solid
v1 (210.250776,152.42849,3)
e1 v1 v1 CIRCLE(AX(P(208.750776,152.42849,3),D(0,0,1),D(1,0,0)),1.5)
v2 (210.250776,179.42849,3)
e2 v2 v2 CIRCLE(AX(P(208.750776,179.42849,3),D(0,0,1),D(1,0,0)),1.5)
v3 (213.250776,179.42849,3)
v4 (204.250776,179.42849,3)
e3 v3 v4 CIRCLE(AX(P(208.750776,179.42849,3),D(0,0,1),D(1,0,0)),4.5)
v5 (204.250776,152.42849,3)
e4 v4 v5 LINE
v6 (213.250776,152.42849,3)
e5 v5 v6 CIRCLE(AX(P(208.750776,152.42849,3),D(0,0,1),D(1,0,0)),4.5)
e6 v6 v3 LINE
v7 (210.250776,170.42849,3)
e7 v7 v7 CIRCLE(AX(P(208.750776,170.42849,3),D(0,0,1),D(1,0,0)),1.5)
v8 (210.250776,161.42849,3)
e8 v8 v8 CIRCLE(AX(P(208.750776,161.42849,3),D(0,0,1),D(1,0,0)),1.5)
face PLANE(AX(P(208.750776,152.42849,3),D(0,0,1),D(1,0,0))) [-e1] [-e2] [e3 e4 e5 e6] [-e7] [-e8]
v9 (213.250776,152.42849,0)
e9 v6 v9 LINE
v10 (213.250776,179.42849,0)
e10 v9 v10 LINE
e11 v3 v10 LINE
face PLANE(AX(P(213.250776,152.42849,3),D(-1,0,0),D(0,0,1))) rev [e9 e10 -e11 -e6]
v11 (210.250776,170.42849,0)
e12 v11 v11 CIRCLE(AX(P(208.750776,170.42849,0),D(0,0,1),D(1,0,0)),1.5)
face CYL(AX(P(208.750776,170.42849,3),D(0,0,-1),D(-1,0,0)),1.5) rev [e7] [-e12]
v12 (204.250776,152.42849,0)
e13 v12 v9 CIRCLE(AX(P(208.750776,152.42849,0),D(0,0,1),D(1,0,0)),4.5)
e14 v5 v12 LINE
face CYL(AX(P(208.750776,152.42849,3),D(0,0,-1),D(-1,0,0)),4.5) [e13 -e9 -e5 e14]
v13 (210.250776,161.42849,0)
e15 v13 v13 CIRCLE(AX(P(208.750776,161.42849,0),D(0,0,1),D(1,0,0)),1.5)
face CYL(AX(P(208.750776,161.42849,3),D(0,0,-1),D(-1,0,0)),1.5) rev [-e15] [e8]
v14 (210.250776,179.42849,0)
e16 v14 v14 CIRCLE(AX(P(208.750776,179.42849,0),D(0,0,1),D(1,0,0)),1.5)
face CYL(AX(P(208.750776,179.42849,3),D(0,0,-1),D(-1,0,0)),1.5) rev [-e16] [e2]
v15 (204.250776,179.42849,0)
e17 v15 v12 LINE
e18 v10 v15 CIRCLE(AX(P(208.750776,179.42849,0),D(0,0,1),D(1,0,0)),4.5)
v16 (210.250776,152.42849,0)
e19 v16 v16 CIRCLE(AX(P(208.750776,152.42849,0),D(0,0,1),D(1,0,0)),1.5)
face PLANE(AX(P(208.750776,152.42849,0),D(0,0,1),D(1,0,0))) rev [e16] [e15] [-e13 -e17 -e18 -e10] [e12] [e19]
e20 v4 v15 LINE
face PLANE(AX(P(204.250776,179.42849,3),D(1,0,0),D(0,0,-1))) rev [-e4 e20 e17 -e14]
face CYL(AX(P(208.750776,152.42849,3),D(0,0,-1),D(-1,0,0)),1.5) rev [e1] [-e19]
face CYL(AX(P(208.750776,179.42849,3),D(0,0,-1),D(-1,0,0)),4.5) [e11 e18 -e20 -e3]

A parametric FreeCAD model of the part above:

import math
import FreeCAD as App
import Part
import Sketcher

V = App.Vector

doc = App.newDocument("Part")
params = doc.addObject("Spreadsheet::Sheet", "Params")
for row, (alias, value) in enumerate([
    ("sketch1_diameter", "3 mm"),
    ("sketch1_radius", "4.5 mm"),
    ("sketch1_height", "27 mm"),
    ("pad1_length", "3 mm"),
], start=1):
    params.set(f"A{row}", alias)
    params.set(f"B{row}", "=" + value)
    params.setAlias(f"B{row}", alias)

body = doc.addObject("PartDesign::Body", "Body")

sketch1 = body.newObject("Sketcher::SketchObject", "Sketch")
sketch1.AttachmentSupport = (doc.getObject("XY_Plane"), [""])
sketch1.MapMode = "FlatFace"
sketch1.addGeometry([
    Part.LineSegment(V(213.250776, 152.42849, 0), V(213.250776, 179.42849, 0)),
    Part.ArcOfCircle(Part.Circle(V(208.750776, 179.42849, 0), V(0, 0, 1), 4.5), math.radians(0), math.radians(180)),
    Part.LineSegment(V(204.250776, 179.42849, 0), V(204.250776, 152.42849, 0)),
    Part.ArcOfCircle(Part.Circle(V(208.750776, 152.42849, 0), V(0, 0, 1), 4.5), math.radians(180), math.radians(360)),
    Part.Circle(V(208.750776, 152.42849, 0), V(0, 0, 1), 1.5),
    Part.Circle(V(208.750776, 161.42849, 0), V(0, 0, 1), 1.5),
    Part.Circle(V(208.750776, 170.42849, 0), V(0, 0, 1), 1.5),
    Part.Circle(V(208.750776, 179.42849, 0), V(0, 0, 1), 1.5),
], False)
sketch1.addConstraint([
    Sketcher.Constraint("Tangent", 0, 2, 1, 1),
    Sketcher.Constraint("Tangent", 1, 2, 2, 1),
    Sketcher.Constraint("Tangent", 2, 2, 3, 1),
    Sketcher.Constraint("Tangent", 3, 2, 0, 1),
    Sketcher.Constraint("Vertical", 0),
    Sketcher.Constraint("Vertical", 2),
    Sketcher.Constraint("Coincident", 4, 3, 3, 3),
    Sketcher.Constraint("Coincident", 7, 3, 1, 3),
    Sketcher.Constraint("Equal", 4, 5),
    Sketcher.Constraint("Equal", 5, 6),
    Sketcher.Constraint("Equal", 6, 7),
    Sketcher.Constraint("Vertical", 4, 3, 5, 3),
    Sketcher.Constraint("Vertical", 5, 3, 6, 3),
    Sketcher.Constraint("Diameter", 4, 3.0),
    Sketcher.Constraint("Radius", 1, 4.5),
    Sketcher.Constraint("DistanceY", 0, 1, 0, 2, 27.0),
    Sketcher.Constraint("DistanceY", 3, 3, 5, 3, 9.0),
    Sketcher.Constraint("DistanceY", 6, 3, 1, 3, 9.0),
    Sketcher.Constraint("DistanceY", -1, 1, 1, 3, 179.42849),
    Sketcher.Constraint("DistanceX", -1, 1, 1, 3, 208.750776),
])
sketch1.setExpression("Constraints[13]", "Params.sketch1_diameter")
sketch1.setExpression("Constraints[14]", "Params.sketch1_radius")
sketch1.setExpression("Constraints[15]", "Params.sketch1_height")
pad1 = body.newObject("PartDesign::Pad", "Pad")
pad1.Profile = sketch1
pad1.setExpression("Length", "Params.pad1_length")

doc.recompute()
